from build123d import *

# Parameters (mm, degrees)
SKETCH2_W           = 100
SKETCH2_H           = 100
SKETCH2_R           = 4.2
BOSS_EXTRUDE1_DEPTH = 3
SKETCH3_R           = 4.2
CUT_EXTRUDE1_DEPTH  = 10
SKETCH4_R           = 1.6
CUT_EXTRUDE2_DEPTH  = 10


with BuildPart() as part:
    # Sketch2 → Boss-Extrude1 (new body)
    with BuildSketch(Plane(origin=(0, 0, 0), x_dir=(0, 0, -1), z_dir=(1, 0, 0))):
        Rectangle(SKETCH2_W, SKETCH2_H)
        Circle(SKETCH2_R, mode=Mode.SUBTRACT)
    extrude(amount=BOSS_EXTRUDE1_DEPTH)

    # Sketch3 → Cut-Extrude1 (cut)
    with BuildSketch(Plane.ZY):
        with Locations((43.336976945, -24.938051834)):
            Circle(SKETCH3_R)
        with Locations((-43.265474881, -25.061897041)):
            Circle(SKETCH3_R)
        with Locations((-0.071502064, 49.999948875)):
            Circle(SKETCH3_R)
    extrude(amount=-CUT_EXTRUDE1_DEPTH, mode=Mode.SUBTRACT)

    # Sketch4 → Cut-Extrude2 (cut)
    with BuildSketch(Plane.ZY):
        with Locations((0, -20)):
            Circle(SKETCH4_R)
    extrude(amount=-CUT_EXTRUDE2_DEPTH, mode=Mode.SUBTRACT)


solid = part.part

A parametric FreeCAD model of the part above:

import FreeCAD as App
import Part
import Sketcher
from FreeCAD import Vector
Q = App.Units.Quantity


def add_polygon(sketch, points):
    """Adds a closed chain of lines whose ends are joined by coincident constraints."""
    first, n = sketch.GeometryCount, len(points)
    for a, b in zip(points, points[1:] + points[:1]):
        sketch.addGeometry(Part.LineSegment(App.Vector(*a, 0), App.Vector(*b, 0)), False)
    for i in range(n):
        sketch.addConstraint(Sketcher.Constraint("Coincident", first + i, 2, first + (i + 1) % n, 1))

doc = App.newDocument("Part")
body = doc.addObject("PartDesign::Body", "Body")

sketch1 = body.newObject("Sketcher::SketchObject", "Sketch")
sketch1.AttachmentSupport = (doc.getObject("YZ_Plane"), [""])
sketch1.MapMode = "FlatFace"
add_polygon(sketch1, [(50, 50), (-50, 50), (-50, -50), (50, -50)])
sketch1.addGeometry(Part.Circle(Vector(0, 0, 0), Vector(0, 0, 1), 4.2), False)
sketch1.addConstraint([
    Sketcher.Constraint("Horizontal", 0),
    Sketcher.Constraint("Vertical", 1),
    Sketcher.Constraint("Horizontal", 2),
    Sketcher.Constraint("Vertical", 3),
    Sketcher.Constraint("Coincident", 4, 3, -1, 1),
    Sketcher.Constraint("Symmetric", 0, 2, 2, 2, -1, 1),
    Sketcher.Constraint("Equal", 2, 1),
    Sketcher.Constraint("Diameter", 4, Q("8.4 mm")),
    Sketcher.Constraint("DistanceX", 0, 2, 0, 1, Q("100 mm")),
])
pad1 = body.newObject("PartDesign::Pad", "Pad")
pad1.Profile = sketch1
pad1.Length = 3

sketch2 = body.newObject("Sketcher::SketchObject", "Sketch001")
sketch2.AttachmentSupport = (doc.getObject("YZ_Plane"), [""])
sketch2.MapMode = "FlatFace"
sketch2.addGeometry([
    Part.Circle(Vector(-24.938052, 43.336977, 0), Vector(0, 0, 1), 4.2),
    Part.Circle(Vector(-25.061897, -43.265475, 0), Vector(0, 0, 1), 4.2),
    Part.Circle(Vector(49.999949, -0.071502, 0), Vector(0, 0, 1), 4.2),
], False)
sketch2.addConstraint([
    Sketcher.Constraint("Equal", 0, 1),
    Sketcher.Constraint("Equal", 1, 2),
    Sketcher.Constraint("Diameter", 0, Q("8.4 mm")),
    Sketcher.Constraint("DistanceX", 0, 3, 2, 3, Q("74.938001 mm")),
    Sketcher.Constraint("DistanceX", 0, 3, -1, 1, Q("24.938052 mm")),
    Sketcher.Constraint("DistanceY", 1, 3, 0, 3, Q("86.602452 mm")),
    Sketcher.Constraint("DistanceY", 2, 3, 0, 3, Q("43.408479 mm")),
    Sketcher.Constraint("DistanceY", -1, 1, 0, 3, Q("43.336977 mm")),
    Sketcher.Constraint("DistanceX", 1, 3, -1, 1, Q("25.061897 mm")),
])
pocket1 = body.newObject("PartDesign::Pocket", "Pocket")
pocket1.Profile = sketch2
pocket1.Length = 10
pocket1.Reversed = True

sketch3 = body.newObject("Sketcher::SketchObject", "Sketch002")
sketch3.AttachmentSupport = (doc.getObject("YZ_Plane"), [""])
sketch3.MapMode = "FlatFace"
sketch3.addGeometry(Part.Circle(Vector(-20, 0, 0), Vector(0, 0, 1), 1.6), False)
sketch3.addConstraint([
    Sketcher.Constraint("PointOnObject", 0, 3, -1),
    Sketcher.Constraint("Diameter", 0, Q("3.2 mm")),
    Sketcher.Constraint("DistanceX", 0, 3, -1, 1, Q("20 mm")),
])
pocket2 = body.newObject("PartDesign::Pocket", "Pocket001")
pocket2.Profile = sketch3
pocket2.Length = 10
pocket2.Reversed = True

doc.recompute()
